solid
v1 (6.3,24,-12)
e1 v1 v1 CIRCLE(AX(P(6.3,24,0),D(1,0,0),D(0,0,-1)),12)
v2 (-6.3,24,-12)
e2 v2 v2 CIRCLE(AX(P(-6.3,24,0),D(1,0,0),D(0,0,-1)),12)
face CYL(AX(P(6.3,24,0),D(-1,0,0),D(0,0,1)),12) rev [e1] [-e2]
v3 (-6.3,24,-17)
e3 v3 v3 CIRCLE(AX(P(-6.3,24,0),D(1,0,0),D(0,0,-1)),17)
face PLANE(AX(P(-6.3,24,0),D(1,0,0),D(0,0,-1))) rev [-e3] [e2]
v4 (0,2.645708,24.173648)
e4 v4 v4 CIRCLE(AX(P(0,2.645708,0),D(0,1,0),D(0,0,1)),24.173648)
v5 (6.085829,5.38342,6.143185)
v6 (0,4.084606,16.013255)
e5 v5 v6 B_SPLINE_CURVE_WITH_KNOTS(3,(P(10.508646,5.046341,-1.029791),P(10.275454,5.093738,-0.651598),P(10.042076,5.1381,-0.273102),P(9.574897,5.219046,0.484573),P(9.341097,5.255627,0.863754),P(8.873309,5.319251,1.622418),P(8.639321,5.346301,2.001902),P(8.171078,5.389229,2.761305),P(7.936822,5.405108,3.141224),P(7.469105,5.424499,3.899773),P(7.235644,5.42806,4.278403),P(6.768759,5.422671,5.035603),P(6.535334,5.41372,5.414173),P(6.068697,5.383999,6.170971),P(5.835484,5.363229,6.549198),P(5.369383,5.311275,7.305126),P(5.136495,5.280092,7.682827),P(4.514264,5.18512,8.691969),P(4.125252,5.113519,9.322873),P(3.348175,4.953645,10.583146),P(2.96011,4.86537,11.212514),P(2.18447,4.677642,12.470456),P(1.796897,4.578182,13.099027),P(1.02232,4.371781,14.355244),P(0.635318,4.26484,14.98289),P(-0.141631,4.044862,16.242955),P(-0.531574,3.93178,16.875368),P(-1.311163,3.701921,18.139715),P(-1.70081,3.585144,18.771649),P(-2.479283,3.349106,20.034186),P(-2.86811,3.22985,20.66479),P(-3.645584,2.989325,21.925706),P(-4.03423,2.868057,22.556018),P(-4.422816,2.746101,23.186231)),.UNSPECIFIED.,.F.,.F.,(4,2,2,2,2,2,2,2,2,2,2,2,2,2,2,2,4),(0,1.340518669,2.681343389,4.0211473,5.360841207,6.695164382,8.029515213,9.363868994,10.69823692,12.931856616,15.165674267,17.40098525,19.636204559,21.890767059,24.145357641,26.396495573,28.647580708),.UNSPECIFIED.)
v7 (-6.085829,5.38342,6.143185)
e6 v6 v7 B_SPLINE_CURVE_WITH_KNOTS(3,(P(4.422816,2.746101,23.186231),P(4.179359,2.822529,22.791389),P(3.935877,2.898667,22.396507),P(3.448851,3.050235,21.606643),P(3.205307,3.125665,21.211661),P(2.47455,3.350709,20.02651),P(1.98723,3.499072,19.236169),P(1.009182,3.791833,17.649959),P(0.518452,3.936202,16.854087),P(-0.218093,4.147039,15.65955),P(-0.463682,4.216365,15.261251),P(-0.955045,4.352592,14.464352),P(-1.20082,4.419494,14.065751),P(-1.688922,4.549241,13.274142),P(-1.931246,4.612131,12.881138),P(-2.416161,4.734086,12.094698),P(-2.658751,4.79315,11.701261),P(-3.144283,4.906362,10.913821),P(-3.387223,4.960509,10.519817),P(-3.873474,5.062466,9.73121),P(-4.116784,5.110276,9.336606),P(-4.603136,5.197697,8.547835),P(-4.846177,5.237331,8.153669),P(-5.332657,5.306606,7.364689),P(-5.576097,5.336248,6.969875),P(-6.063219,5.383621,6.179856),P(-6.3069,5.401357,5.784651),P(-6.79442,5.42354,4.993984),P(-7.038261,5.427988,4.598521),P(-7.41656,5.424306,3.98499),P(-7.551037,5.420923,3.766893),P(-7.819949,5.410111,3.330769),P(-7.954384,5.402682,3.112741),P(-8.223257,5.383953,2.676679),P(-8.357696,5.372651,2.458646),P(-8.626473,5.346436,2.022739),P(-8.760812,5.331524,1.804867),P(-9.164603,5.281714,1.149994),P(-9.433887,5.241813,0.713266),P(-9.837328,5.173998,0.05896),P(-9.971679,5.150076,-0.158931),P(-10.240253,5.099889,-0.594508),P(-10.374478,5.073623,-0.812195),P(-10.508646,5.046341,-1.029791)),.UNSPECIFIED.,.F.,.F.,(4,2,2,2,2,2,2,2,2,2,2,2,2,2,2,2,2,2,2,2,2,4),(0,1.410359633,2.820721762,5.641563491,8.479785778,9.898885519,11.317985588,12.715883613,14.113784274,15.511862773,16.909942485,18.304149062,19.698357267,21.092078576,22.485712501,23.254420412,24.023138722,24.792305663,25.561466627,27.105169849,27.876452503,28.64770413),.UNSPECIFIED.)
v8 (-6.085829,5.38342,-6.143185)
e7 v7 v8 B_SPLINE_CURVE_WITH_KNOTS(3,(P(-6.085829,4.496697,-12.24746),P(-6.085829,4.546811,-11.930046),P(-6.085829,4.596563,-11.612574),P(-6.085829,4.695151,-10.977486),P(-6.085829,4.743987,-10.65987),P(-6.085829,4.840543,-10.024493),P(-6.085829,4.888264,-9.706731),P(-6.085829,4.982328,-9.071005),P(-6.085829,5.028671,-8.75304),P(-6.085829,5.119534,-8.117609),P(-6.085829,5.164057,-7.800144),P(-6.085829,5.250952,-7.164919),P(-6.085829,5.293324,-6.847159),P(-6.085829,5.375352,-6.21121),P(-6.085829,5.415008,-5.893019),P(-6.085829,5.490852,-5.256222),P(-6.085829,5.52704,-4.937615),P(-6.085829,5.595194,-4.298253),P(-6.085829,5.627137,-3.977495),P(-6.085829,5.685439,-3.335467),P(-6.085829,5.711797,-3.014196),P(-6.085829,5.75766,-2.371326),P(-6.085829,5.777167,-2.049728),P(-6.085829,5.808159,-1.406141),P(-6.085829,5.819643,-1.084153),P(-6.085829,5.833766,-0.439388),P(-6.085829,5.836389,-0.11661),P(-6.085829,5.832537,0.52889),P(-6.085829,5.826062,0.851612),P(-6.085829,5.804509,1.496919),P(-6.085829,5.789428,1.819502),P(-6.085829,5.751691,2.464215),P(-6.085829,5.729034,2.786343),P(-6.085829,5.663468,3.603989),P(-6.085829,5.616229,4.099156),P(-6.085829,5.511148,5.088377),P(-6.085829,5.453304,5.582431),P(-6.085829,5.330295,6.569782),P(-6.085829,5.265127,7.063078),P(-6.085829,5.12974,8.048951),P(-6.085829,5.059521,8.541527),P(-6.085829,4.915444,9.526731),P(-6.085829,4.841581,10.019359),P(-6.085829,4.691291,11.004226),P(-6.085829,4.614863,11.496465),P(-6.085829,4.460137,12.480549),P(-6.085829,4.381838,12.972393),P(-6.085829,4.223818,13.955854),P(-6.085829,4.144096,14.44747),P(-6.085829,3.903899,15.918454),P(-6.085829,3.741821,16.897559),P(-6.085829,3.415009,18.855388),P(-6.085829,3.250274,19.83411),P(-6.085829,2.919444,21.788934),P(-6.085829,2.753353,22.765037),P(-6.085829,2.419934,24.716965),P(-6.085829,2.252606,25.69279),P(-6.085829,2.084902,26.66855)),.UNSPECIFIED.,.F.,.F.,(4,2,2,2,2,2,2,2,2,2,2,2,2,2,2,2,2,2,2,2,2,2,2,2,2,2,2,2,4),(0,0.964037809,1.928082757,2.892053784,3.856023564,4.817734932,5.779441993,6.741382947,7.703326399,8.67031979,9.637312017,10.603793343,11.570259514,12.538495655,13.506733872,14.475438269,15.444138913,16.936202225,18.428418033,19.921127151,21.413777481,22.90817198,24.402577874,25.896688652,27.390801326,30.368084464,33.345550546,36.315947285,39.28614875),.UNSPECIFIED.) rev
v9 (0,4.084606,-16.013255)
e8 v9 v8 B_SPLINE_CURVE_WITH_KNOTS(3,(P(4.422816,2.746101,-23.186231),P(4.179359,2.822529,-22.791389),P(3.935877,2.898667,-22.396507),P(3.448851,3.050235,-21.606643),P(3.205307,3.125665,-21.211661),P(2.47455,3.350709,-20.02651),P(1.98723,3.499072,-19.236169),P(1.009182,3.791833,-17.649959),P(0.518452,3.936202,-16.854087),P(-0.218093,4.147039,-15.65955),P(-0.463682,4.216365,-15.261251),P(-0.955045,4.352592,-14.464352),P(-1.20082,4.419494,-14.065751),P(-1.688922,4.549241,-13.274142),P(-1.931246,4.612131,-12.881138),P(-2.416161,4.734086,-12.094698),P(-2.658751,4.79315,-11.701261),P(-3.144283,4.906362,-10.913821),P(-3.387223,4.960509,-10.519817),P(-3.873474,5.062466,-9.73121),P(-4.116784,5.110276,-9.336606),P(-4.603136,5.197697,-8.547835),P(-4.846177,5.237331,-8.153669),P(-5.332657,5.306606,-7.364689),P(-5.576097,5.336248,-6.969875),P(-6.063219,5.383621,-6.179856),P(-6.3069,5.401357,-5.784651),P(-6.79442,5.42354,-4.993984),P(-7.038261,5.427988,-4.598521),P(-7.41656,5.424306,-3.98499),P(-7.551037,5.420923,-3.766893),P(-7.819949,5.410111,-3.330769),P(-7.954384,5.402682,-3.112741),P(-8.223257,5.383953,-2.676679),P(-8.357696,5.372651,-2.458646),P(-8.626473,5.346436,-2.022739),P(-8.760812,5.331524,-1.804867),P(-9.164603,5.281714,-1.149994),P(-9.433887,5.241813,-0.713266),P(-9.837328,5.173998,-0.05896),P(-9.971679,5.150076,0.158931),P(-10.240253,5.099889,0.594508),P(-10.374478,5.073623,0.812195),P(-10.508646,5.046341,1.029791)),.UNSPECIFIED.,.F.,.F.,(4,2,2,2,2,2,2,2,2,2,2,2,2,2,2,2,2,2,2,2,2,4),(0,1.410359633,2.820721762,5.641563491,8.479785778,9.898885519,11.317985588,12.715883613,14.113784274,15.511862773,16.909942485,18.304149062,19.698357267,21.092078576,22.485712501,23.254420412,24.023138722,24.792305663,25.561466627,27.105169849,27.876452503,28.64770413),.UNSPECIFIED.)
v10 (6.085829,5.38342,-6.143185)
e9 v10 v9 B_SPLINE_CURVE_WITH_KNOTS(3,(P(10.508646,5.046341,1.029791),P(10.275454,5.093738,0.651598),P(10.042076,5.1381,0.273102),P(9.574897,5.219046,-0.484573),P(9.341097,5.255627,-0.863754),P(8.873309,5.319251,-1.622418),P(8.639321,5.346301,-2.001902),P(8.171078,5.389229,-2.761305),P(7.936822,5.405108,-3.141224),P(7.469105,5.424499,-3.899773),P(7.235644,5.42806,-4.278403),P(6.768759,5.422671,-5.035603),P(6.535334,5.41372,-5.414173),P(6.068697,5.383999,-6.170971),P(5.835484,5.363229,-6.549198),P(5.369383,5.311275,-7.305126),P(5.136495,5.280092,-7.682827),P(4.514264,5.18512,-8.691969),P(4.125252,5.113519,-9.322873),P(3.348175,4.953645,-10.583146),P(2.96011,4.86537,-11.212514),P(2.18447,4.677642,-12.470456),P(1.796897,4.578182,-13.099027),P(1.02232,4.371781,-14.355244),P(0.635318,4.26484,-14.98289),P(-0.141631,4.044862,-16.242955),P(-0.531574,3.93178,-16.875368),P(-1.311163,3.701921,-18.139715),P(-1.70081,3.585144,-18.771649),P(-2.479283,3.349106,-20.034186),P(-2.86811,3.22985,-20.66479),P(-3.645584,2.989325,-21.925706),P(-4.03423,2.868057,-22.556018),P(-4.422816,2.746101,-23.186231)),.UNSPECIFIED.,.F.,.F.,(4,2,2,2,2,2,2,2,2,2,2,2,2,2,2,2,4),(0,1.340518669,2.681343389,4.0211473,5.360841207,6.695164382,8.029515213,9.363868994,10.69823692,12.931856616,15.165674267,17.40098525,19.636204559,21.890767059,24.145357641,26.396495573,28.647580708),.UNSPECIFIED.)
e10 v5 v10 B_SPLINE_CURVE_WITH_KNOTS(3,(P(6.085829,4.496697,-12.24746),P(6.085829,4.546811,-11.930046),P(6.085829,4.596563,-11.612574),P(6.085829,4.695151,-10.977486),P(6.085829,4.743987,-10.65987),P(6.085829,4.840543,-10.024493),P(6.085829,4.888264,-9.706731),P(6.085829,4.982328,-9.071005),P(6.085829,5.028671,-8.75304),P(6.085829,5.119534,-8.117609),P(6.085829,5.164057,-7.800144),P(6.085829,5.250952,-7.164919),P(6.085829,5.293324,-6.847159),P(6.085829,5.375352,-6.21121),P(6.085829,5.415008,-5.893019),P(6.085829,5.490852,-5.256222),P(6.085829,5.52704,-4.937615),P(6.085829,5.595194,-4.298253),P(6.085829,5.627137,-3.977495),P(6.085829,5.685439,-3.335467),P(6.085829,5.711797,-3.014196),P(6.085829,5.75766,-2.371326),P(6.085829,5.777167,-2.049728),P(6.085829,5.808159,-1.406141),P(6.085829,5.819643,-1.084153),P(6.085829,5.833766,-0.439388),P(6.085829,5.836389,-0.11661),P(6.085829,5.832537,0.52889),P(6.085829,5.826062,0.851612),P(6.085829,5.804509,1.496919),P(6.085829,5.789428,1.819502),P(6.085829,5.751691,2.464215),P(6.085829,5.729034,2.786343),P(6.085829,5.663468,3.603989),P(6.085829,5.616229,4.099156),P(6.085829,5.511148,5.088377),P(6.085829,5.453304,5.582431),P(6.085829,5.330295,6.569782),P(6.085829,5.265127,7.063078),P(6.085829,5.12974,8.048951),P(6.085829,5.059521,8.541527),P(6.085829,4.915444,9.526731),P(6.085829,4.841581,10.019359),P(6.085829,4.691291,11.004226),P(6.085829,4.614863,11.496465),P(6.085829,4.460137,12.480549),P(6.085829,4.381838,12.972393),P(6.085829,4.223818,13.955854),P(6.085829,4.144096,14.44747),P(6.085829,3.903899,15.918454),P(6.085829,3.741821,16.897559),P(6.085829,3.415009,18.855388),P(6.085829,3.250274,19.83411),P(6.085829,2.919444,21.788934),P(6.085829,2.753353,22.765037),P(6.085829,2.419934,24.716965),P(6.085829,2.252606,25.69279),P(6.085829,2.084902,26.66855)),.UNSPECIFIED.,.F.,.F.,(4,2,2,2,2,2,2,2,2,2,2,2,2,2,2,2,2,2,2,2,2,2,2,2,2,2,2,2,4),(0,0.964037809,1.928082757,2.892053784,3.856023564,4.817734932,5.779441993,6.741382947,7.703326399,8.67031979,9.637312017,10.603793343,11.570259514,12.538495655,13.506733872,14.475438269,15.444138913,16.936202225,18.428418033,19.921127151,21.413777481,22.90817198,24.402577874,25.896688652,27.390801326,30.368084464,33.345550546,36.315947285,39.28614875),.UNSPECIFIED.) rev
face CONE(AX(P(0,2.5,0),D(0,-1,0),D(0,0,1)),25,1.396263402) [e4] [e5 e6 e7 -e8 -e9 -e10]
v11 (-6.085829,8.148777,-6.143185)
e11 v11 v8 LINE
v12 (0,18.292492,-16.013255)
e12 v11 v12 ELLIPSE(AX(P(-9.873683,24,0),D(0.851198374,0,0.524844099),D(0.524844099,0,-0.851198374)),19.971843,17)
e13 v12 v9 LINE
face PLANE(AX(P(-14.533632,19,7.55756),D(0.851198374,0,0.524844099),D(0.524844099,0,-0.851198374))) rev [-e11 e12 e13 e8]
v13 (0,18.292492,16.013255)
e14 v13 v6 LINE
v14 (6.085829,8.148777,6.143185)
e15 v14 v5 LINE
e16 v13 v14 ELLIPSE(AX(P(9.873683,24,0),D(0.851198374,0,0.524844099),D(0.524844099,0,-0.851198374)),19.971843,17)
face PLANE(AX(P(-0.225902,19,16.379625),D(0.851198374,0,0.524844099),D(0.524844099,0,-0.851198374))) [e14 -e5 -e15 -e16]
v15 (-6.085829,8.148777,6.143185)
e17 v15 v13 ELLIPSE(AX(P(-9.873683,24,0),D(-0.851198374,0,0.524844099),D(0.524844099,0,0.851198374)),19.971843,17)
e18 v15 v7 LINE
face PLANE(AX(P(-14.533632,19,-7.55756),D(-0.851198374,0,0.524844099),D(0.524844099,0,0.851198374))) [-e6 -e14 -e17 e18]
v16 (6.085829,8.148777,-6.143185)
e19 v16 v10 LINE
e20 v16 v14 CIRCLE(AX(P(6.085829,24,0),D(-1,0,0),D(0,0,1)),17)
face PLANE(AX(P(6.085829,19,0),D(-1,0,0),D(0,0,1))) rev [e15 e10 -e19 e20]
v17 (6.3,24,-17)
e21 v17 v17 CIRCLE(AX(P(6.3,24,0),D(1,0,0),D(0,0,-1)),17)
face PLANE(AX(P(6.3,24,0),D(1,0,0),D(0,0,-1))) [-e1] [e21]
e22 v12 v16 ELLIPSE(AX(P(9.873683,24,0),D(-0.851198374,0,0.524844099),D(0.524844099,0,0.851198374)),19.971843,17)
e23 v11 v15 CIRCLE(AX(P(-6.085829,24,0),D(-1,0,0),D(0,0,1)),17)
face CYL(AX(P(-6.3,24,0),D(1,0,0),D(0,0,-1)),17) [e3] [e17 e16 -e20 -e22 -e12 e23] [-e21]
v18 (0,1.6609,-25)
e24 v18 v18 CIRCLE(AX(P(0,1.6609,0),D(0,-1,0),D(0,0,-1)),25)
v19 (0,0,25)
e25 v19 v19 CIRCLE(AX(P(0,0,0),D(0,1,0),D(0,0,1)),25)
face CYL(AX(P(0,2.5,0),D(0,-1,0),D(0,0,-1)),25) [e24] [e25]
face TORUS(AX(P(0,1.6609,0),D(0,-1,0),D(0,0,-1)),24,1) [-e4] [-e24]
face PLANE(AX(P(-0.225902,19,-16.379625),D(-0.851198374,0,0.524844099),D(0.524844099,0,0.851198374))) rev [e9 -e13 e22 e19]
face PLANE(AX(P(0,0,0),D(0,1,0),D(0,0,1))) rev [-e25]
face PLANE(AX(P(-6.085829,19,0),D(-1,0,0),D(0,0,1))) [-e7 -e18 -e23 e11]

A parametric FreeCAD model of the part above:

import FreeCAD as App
import Part
import Sketcher

V = App.Vector
Q = App.Units.Quantity


def edges_at(feature, points):
    """Names of the edges that pass closest to the given points."""
    edges = feature.Shape.Edges
    near = lambda p: min(range(len(edges)), key=lambda i: edges[i].distToShape(Part.Vertex(*p))[0])
    return sorted({f"Edge{near(p) + 1}" for p in points})

doc = App.newDocument("Part")
body = doc.addObject("PartDesign::Body", "Body")

# Sketch on XZ plane
sketch1 = body.newObject("Sketcher::SketchObject", "Sketch")
sketch1.AttachmentSupport = (doc.getObject("XZ_Plane"), [""])
sketch1.MapMode = "FlatFace"
sketch1.addGeometry(Part.Circle(V(0, 0, 0), V(0, 0, 1), 25), False)
sketch1.addConstraint([
    Sketcher.Constraint("Coincident", 0, 3, -1, 1),
    Sketcher.Constraint("Diameter", 0, Q("50 mm")),
])
pad1 = body.newObject("PartDesign::Pad", "Pad")
pad1.Profile = sketch1
pad1.Length = 2.5
pad1.Reversed = True

# Sketch on YZ plane
sketch2 = body.newObject("Sketcher::SketchObject", "Sketch001")
sketch2.AttachmentSupport = (doc.getObject("YZ_Plane"), [""])
sketch2.MapMode = "FlatFace"
sketch2.addGeometry([
    Part.LineSegment(V(2.5, 0, 0), V(2.5, -25, 0)),
    Part.LineSegment(V(2.5, -25, 0), V(6.9, 0, 0)),
    Part.LineSegment(V(6.9, 0, 0), V(2.5, 0, 0)),
], False)
sketch2.addConstraint([
    Sketcher.Constraint("Coincident", 0, 2, 1, 1),
    Sketcher.Constraint("Coincident", 1, 2, 2, 1),
    Sketcher.Constraint("Coincident", 2, 2, 0, 1),
    Sketcher.Constraint("Vertical", 0),
    Sketcher.Constraint("Horizontal", 2),
    Sketcher.Constraint("PointOnObject", 1, 2, -1),
    Sketcher.Constraint("DistanceY", 0, 2, 0, 1, Q("25 mm")),
    Sketcher.Constraint("Angle", 1, Q("80 deg")),
    Sketcher.Constraint("DistanceX", -1, 1, 0, 2, Q("2.5 mm")),
])
revolution = body.newObject("PartDesign::Revolution", "Revolution")
revolution.Profile = sketch2
revolution.ReferenceAxis = (sketch2, ["H_Axis"])
revolution.Angle = 360
doc.recompute()

fillet = body.newObject("PartDesign::Fillet", "Fillet")
fillet.Base = (revolution, edges_at(revolution, [(-25, 2.5, 0)]))
fillet.Radius = 1

# Sketch on XZ plane
sketch3 = body.newObject("Sketcher::SketchObject", "Sketch002")
sketch3.AttachmentSupport = (doc.getObject("XZ_Plane"), [""])
sketch3.MapMode = "FlatFace"
sketch3.AttachmentOffset = App.Placement(V(0, 0, -4), App.Rotation())
sketch3.addGeometry([
    Part.LineSegment(V(0, 16, 0), V(6, 6, 0)),  # 0
    Part.LineSegment(V(6, 6, 0), V(6, -6, 0)),  # 1
    Part.LineSegment(V(6, -6, 0), V(0, -16, 0)),  # 2
    Part.LineSegment(V(0, -16, 0), V(-6, -6, 0)),  # 3
    Part.LineSegment(V(-6, -6, 0), V(-6, 6, 0)),  # 4
    Part.LineSegment(V(-6, 6, 0), V(0, 16, 0)),  # 5
], False)
sketch3.addConstraint([
    Sketcher.Constraint("Coincident", 0, 2, 1, 1),
    Sketcher.Constraint("Coincident", 1, 2, 2, 1),
    Sketcher.Constraint("Coincident", 2, 2, 3, 1),
    Sketcher.Constraint("Coincident", 3, 2, 4, 1),
    Sketcher.Constraint("Coincident", 4, 2, 5, 1),
    Sketcher.Constraint("Coincident", 5, 2, 0, 1),
    Sketcher.Constraint("Vertical", 1),
    Sketcher.Constraint("Vertical", 4),
    Sketcher.Constraint("Symmetric", 0, 2, 3, 2, -1, 1),
    Sketcher.Constraint("Symmetric", 2, 2, 5, 2, -1, 1),
    Sketcher.Constraint("PointOnObject", 2, 2, -2),
    Sketcher.Constraint("Parallel", 2, 5),
    Sketcher.Constraint("Horizontal", 1, 2, 3, 2),
    Sketcher.Constraint("Distance", 0, Q("11.595499 mm")),
    Sketcher.Constraint("DistanceY", 1, 2, 1, 1, Q("12.28637 mm")),
    Sketcher.Constraint("DistanceX", -1, 1, 0, 2, Q("6.085829 mm")),
])
pad2 = body.newObject("PartDesign::Pad", "Pad001")
pad2.Profile = sketch3
pad2.Length = 15
pad2.Reversed = True

# Sketch on YZ plane
sketch4 = body.newObject("Sketcher::SketchObject", "Sketch003")
sketch4.AttachmentSupport = (doc.getObject("YZ_Plane"), [""])
sketch4.MapMode = "FlatFace"
sketch4.addGeometry(Part.Circle(V(24, 0, 0), V(0, 0, 1), 17), False)
sketch4.addConstraint([
    Sketcher.Constraint("PointOnObject", 0, 3, -1),
    Sketcher.Constraint("Diameter", 0, Q("34 mm")),
    Sketcher.Constraint("DistanceX", -1, 1, 0, 3, Q("24 mm")),
])
pad3 = body.newObject("PartDesign::Pad", "Pad002")
pad3.Profile = sketch4
pad3.Type = "TwoLengths"
pad3.Length = 6.3
pad3.Length2 = 6.3

# Sketch on YZ plane
sketch5 = body.newObject("Sketcher::SketchObject", "Sketch004")
sketch5.AttachmentSupport = (doc.getObject("YZ_Plane"), [""])
sketch5.MapMode = "FlatFace"
sketch5.addGeometry(Part.Circle(V(24, 0, 0), V(0, 0, 1), 12), False)
sketch5.addConstraint([
    Sketcher.Constraint("PointOnObject", 0, 3, -1),
    Sketcher.Constraint("Diameter", 0, Q("24 mm")),
    Sketcher.Constraint("DistanceX", -1, 1, 0, 3, Q("24 mm")),
])
pocket1 = body.newObject("PartDesign::Pocket", "Pocket")
pocket1.Profile = sketch5
pocket1.Type = "ThroughAll"
pocket1.Midplane = True

doc.recompute()
